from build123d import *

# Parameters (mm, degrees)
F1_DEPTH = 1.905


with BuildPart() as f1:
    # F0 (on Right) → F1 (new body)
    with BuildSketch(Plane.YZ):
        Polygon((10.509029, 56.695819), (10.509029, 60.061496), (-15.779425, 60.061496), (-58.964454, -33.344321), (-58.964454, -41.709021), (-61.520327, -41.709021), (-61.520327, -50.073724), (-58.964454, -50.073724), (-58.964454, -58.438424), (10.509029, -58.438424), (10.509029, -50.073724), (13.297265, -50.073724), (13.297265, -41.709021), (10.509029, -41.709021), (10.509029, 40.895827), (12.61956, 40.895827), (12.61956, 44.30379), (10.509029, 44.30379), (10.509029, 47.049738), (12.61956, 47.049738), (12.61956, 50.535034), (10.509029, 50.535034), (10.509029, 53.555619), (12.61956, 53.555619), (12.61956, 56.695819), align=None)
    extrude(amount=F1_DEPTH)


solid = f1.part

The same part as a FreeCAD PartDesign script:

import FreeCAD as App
import Part
import Sketcher
from FreeCAD import Vector
Q = App.Units.Quantity


def add_polygon(sketch, points):
    """Adds a closed chain of lines whose ends are joined by coincident constraints."""
    first, n = sketch.GeometryCount, len(points)
    for a, b in zip(points, points[1:] + points[:1]):
        sketch.addGeometry(Part.LineSegment(App.Vector(*a, 0), App.Vector(*b, 0)), False)
    for i in range(n):
        sketch.addConstraint(Sketcher.Constraint("Coincident", first + i, 2, first + (i + 1) % n, 1))

doc = App.newDocument("Part")
params = doc.addObject("Spreadsheet::Sheet", "Params")
for row, (alias, value) in enumerate([
    ("pad1_length", "0.075 in"),
], start=1):
    params.set(f"A{row}", alias)
    params.set(f"B{row}", "=" + value)
    params.setAlias(f"B{row}", alias)

body = doc.addObject("PartDesign::Body", "Body")

sketch1 = doc.addObject("Sketcher::SketchObject", "Sketch")
body.addObject(sketch1)
sketch1.AttachmentSupport = (doc.YZ_Plane, [""])
sketch1.MapMode = "FlatFace"
add_polygon(sketch1, [(10.509029, 56.695819), (10.509029, 60.061496), (-15.779425, 60.061496), (-58.964454, -33.344321), (-58.964454, -41.709021), (-61.520327, -41.709021), (-61.520327, -50.073724), (-58.964454, -50.073724), (-58.964454, -58.438424), (10.509029, -58.438424), (10.509029, -50.073724), (13.297265, -50.073724), (13.297265, -41.709021), (10.509029, -41.709021), (10.509029, 40.895827), (12.61956, 40.895827), (12.61956, 44.30379), (10.509029, 44.30379), (10.509029, 47.049738), (12.61956, 47.049738), (12.61956, 50.535034), (10.509029, 50.535034), (10.509029, 53.555619), (12.61956, 53.555619), (12.61956, 56.695819)])
sketch1.addConstraint(Sketcher.Constraint("Vertical", 0))
sketch1.addConstraint(Sketcher.Constraint("Horizontal", 1))
sketch1.addConstraint(Sketcher.Constraint("Vertical", 3))
sketch1.addConstraint(Sketcher.Constraint("Horizontal", 4))
sketch1.addConstraint(Sketcher.Constraint("Vertical", 5))
sketch1.addConstraint(Sketcher.Constraint("Horizontal", 6))
sketch1.addConstraint(Sketcher.Constraint("Vertical", 7))
sketch1.addConstraint(Sketcher.Constraint("Horizontal", 8))
sketch1.addConstraint(Sketcher.Constraint("Vertical", 9))
sketch1.addConstraint(Sketcher.Constraint("Horizontal", 10))
sketch1.addConstraint(Sketcher.Constraint("Vertical", 11))
sketch1.addConstraint(Sketcher.Constraint("Horizontal", 12))
sketch1.addConstraint(Sketcher.Constraint("Vertical", 13))
sketch1.addConstraint(Sketcher.Constraint("Horizontal", 14))
sketch1.addConstraint(Sketcher.Constraint("Vertical", 15))
sketch1.addConstraint(Sketcher.Constraint("Horizontal", 16))
sketch1.addConstraint(Sketcher.Constraint("Vertical", 17))
sketch1.addConstraint(Sketcher.Constraint("Horizontal", 18))
sketch1.addConstraint(Sketcher.Constraint("Vertical", 19))
sketch1.addConstraint(Sketcher.Constraint("Horizontal", 20))
sketch1.addConstraint(Sketcher.Constraint("Vertical", 21))
sketch1.addConstraint(Sketcher.Constraint("Horizontal", 22))
sketch1.addConstraint(Sketcher.Constraint("Vertical", 23))
sketch1.addConstraint(Sketcher.Constraint("Horizontal", 24))
sketch1.addConstraint(Sketcher.Constraint("Horizontal", 6, 2, 9, 2))
sketch1.addConstraint(Sketcher.Constraint("Horizontal", 4, 2, 11, 2))
sketch1.addConstraint(Sketcher.Constraint("Vertical", 3, 2, 6, 2))
sketch1.addConstraint(Sketcher.Constraint("Vertical", 0, 2, 8, 2))
sketch1.addConstraint(Sketcher.Constraint("Vertical", 9, 2, 12, 2))
sketch1.addConstraint(Sketcher.Constraint("Vertical", 13, 2, 16, 2))
sketch1.addConstraint(Sketcher.Constraint("Vertical", 15, 2, 18, 2))
sketch1.addConstraint(Sketcher.Constraint("Vertical", 17, 2, 20, 2))
sketch1.addConstraint(Sketcher.Constraint("Vertical", 19, 2, 22, 2))
sketch1.addConstraint(Sketcher.Constraint("Equal", 3, 7))
sketch1.addConstraint(Sketcher.Constraint("DistanceY", 3, 2, 3, 1, Q("8.3647 mm")))
sketch1.addConstraint(Sketcher.Constraint("DistanceY", 23, 1, 23, 2, Q("3.1402 mm")))
sketch1.addConstraint(Sketcher.Constraint("DistanceX", 14, 1, 14, 2, Q("2.110531 mm")))
sketch1.addConstraint(Sketcher.Constraint("DistanceY", 13, 1, 13, 2, Q("82.604848 mm")))
sketch1.addConstraint(Sketcher.Constraint("Distance", 2, Q("102.90575 mm")))
sketch1.addConstraint(Sketcher.Constraint("DistanceX", 1, 2, 1, 1, Q("26.288454 mm")))
sketch1.addConstraint(Sketcher.Constraint("DistanceX", 4, 2, 4, 1, Q("2.555873 mm")))
sketch1.addConstraint(Sketcher.Constraint("DistanceX", 8, 1, 8, 2, Q("69.473483 mm")))
sketch1.addConstraint(Sketcher.Constraint("DistanceX", 10, 1, 10, 2, Q("2.788236 mm")))
sketch1.addConstraint(Sketcher.Constraint("DistanceY", 0, 1, 0, 2, Q("3.365677 mm")))
sketch1.addConstraint(Sketcher.Constraint("DistanceY", 5, 2, 5, 1, Q("8.364703 mm")))
sketch1.addConstraint(Sketcher.Constraint("DistanceY", 15, 1, 15, 2, Q("3.407963 mm")))
sketch1.addConstraint(Sketcher.Constraint("DistanceY", 17, 1, 17, 2, Q("2.745948 mm")))
sketch1.addConstraint(Sketcher.Constraint("DistanceY", 19, 1, 19, 2, Q("3.485296 mm")))
sketch1.addConstraint(Sketcher.Constraint("DistanceX", -1, 1, 0, 2, Q("10.509029 mm")))
sketch1.addConstraint(Sketcher.Constraint("DistanceY", 2, 2, -1, 1, Q("33.344321 mm")))
pad1 = doc.addObject("PartDesign::Pad", "Pad")
body.addObject(pad1)
pad1.Profile = sketch1
pad1.setExpression("Length", "Params.pad1_length")

doc.recompute()
